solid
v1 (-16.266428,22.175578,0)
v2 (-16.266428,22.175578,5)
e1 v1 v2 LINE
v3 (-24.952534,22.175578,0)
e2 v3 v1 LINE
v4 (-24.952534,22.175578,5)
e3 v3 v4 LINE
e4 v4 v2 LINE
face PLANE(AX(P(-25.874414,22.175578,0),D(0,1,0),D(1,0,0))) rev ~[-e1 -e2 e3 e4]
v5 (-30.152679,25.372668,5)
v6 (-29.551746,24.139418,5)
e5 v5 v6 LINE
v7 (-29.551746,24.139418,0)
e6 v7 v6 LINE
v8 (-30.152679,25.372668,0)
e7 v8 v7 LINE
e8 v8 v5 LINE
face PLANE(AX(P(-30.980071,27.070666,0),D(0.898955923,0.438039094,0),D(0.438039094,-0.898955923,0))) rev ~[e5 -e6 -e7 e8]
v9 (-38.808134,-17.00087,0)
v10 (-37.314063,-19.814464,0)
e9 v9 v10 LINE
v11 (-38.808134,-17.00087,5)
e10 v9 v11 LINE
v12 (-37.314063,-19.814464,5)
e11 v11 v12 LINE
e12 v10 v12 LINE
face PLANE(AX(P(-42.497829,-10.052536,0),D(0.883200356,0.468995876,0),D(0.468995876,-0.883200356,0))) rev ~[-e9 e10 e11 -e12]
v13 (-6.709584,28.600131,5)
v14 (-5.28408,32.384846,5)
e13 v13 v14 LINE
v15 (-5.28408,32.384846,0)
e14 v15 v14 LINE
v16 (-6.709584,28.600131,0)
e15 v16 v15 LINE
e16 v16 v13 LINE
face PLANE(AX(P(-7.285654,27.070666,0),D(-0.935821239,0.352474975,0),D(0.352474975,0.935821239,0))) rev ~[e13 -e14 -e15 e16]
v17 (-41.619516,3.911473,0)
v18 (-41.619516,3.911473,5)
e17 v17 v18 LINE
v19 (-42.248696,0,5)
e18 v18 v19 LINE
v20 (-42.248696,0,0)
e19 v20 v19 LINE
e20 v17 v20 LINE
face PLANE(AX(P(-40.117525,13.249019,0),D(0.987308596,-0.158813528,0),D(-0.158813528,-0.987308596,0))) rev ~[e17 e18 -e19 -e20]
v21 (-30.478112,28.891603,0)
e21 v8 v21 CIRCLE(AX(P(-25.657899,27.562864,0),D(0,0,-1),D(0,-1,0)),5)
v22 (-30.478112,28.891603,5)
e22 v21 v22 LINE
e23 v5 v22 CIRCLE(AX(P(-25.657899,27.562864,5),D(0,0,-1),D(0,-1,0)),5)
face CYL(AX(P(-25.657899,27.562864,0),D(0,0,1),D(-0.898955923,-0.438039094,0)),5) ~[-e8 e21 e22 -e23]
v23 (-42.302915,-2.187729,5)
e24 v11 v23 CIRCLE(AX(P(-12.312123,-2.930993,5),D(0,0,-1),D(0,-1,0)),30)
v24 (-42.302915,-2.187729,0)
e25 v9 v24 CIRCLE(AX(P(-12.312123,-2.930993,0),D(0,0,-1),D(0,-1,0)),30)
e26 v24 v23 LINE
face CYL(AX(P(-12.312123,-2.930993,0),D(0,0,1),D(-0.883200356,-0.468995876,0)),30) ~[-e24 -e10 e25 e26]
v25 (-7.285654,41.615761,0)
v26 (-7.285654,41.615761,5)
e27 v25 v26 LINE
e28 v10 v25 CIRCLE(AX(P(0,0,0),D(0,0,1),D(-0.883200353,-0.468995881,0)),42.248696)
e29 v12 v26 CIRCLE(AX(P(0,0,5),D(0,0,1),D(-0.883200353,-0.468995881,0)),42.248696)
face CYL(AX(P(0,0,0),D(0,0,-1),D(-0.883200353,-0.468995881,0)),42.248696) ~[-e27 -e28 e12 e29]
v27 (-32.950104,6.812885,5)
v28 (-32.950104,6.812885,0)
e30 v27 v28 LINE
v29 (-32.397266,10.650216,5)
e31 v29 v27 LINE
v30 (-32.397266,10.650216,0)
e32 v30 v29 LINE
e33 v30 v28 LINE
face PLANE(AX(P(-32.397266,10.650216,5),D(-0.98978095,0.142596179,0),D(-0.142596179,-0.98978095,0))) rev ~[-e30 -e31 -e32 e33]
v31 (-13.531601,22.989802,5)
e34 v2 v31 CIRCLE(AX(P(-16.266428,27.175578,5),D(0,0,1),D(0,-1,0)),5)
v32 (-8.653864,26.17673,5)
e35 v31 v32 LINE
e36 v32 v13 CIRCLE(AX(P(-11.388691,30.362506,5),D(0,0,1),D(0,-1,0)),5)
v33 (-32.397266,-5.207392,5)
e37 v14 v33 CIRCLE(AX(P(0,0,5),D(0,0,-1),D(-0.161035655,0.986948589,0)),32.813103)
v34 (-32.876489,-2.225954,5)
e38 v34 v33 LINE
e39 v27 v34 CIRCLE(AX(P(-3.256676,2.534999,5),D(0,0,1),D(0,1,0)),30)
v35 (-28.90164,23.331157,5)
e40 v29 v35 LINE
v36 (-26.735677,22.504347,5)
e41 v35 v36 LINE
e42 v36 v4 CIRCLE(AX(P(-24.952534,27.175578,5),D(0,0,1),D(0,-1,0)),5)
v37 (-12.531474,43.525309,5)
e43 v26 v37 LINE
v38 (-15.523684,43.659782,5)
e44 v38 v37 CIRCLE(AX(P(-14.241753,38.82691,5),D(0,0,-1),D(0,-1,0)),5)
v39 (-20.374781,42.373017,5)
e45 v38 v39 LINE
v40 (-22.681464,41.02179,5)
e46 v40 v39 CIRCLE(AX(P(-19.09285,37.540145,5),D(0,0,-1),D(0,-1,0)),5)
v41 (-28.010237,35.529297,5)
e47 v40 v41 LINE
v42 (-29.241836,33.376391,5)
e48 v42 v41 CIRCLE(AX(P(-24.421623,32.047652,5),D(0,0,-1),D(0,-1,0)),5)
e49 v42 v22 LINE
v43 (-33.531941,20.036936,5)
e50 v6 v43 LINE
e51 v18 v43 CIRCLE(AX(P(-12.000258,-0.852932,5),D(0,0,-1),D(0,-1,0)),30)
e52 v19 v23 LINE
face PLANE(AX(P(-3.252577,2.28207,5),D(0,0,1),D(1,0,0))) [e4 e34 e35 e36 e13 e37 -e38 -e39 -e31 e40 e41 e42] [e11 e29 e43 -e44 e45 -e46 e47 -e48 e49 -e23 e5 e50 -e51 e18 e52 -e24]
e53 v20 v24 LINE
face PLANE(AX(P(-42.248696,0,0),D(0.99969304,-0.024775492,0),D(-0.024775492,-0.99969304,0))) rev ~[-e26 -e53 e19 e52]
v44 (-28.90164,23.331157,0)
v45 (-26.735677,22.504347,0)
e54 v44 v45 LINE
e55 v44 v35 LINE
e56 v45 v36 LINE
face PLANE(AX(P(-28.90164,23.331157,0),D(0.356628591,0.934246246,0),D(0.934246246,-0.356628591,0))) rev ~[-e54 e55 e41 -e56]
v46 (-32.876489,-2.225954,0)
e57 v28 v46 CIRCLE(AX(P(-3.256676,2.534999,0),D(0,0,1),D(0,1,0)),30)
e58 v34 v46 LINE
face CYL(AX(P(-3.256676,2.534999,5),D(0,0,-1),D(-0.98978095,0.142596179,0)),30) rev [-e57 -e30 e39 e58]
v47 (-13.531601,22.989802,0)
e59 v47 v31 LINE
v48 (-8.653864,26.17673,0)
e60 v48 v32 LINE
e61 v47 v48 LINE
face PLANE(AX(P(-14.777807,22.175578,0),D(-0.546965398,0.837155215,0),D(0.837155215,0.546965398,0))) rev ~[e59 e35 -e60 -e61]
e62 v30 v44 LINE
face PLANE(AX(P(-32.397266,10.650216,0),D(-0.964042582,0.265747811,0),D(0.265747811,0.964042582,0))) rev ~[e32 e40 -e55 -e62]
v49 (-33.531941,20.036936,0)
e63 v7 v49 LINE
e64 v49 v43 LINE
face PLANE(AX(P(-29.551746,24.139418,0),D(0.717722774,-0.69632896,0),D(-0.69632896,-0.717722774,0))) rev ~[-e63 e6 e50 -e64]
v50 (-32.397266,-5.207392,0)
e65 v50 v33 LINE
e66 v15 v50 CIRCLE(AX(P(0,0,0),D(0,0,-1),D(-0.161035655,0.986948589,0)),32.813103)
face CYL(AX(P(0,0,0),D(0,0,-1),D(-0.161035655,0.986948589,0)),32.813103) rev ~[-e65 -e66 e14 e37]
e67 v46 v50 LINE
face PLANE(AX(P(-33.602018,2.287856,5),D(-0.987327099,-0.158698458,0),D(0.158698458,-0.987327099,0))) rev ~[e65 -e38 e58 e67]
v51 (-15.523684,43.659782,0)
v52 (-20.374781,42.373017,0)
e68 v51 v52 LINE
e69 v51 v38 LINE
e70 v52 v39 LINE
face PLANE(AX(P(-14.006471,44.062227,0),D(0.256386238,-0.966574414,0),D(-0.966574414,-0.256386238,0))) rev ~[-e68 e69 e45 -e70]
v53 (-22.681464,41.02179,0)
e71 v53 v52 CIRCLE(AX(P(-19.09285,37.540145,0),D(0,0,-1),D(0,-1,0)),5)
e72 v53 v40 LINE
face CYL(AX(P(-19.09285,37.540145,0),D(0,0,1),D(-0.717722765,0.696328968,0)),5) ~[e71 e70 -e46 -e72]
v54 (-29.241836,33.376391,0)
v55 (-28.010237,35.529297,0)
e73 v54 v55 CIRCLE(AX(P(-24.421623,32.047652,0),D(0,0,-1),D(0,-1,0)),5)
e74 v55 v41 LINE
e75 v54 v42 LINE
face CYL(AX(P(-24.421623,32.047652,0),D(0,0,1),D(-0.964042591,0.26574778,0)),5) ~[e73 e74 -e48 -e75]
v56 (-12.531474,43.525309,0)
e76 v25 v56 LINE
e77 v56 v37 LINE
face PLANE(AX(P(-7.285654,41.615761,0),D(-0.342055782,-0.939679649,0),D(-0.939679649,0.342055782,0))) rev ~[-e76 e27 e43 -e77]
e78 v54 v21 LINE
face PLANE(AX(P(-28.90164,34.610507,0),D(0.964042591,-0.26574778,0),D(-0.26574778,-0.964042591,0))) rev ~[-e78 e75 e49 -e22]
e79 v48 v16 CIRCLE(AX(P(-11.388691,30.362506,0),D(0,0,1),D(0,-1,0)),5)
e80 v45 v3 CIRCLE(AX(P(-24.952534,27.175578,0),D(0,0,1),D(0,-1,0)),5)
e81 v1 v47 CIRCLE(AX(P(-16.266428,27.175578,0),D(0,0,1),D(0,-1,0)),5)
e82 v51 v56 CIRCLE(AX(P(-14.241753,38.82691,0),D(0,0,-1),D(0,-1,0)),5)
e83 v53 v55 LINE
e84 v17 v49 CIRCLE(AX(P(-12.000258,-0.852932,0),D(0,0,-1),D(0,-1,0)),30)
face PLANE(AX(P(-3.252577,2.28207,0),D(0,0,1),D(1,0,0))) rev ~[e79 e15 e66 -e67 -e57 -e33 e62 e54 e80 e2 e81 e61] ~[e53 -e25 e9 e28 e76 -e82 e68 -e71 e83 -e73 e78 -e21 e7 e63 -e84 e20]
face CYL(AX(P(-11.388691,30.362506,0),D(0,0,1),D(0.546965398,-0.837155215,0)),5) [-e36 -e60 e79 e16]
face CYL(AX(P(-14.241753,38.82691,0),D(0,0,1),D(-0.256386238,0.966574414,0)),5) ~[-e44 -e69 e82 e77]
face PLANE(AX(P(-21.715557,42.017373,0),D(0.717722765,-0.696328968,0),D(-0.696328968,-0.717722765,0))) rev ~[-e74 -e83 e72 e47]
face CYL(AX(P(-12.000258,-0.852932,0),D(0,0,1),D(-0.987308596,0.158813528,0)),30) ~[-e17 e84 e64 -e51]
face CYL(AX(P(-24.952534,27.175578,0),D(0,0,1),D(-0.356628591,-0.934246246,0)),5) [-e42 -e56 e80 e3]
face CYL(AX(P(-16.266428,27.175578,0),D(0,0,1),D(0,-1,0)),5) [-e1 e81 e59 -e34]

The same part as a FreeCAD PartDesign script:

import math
import FreeCAD as App
import Part
import Sketcher

V = App.Vector
Q = App.Units.Quantity


def edges_at(feature, points):
    """Names of the edges that pass closest to the given points."""
    edges = feature.Shape.Edges
    near = lambda p: min(range(len(edges)), key=lambda i: edges[i].distToShape(Part.Vertex(*p))[0])
    return sorted({f"Edge{near(p) + 1}" for p in points})


def add_polygon(sketch, points):
    """Adds a closed chain of lines whose ends are joined by coincident constraints."""
    first, n = sketch.GeometryCount, len(points)
    for a, b in zip(points, points[1:] + points[:1]):
        sketch.addGeometry(Part.LineSegment(App.Vector(*a, 0), App.Vector(*b, 0)), False)
    for i in range(n):
        sketch.addConstraint(Sketcher.Constraint("Coincident", first + i, 2, first + (i + 1) % n, 1))

doc = App.newDocument("Part")
body = doc.addObject("PartDesign::Body", "Body")

sketch1 = body.newObject("Sketcher::SketchObject", "Sketch")
sketch1.AttachmentSupport = (doc.getObject("XY_Plane"), [""])
sketch1.MapMode = "FlatFace"
sketch1.addGeometry(Part.LineSegment(V(-42.5, -10.1, 0), V(-37.3, -19.8, 0)), False)
sketch1.addGeometry(Part.ArcOfCircle(Part.Circle(V(0, 0, 0), V(0, 0, 1), 42.2), math.radians(-152), math.radians(100)), False)
sketch1.addGeometry(Part.LineSegment(V(-7.3, 41.6, 0), V(-14, 44.1, 0)), False)
sketch1.addGeometry(Part.LineSegment(V(-14, 44.1, 0), V(-21.7, 42, 0)), False)
sketch1.addGeometry(Part.LineSegment(V(-21.7, 42, 0), V(-28.9, 34.6, 0)), False)
sketch1.addGeometry(Part.LineSegment(V(-28.9, 34.6, 0), V(-31, 27.1, 0)), False)
sketch1.addGeometry(Part.LineSegment(V(-31, 27.1, 0), V(-29.6, 24.1, 0)), False)
sketch1.addGeometry(Part.LineSegment(V(-29.6, 24.1, 0), V(-40.1, 13.2, 0)), False)
sketch1.addGeometry(Part.LineSegment(V(-40.1, 13.2, 0), V(-42.2, 0, 0)), False)
sketch1.addGeometry(Part.LineSegment(V(-42.2, 0, 0), V(-42.5, -10.1, 0)), False)
sketch1.addGeometry(Part.LineSegment(V(-7.3, 27.1, 0), V(-5.3, 32.4, 0)), False)
sketch1.addGeometry(Part.ArcOfCircle(Part.Circle(V(0, 0, 0), V(0, 0, 1), 32.8), math.radians(-171), math.radians(99)), False)
sketch1.addGeometry(Part.LineSegment(V(-32.4, -5.2, 0), V(-32.4, 10.7, 0)), False)
sketch1.addGeometry(Part.LineSegment(V(-32.4, 10.7, 0), V(-28.9, 23.3, 0)), False)
sketch1.addGeometry(Part.LineSegment(V(-28.9, 23.3, 0), V(-25.9, 22.2, 0)), False)
sketch1.addGeometry(Part.LineSegment(V(-25.9, 22.2, 0), V(-14.8, 22.2, 0)), False)
sketch1.addGeometry(Part.LineSegment(V(-14.8, 22.2, 0), V(-7.3, 27.1, 0)), False)
sketch1.addConstraint(Sketcher.Constraint("Tangent", 0, 2, 1, 1))
sketch1.addConstraint(Sketcher.Constraint("Coincident", 1, 2, 2, 1))
sketch1.addConstraint(Sketcher.Constraint("Coincident", 2, 2, 3, 1))
sketch1.addConstraint(Sketcher.Constraint("Coincident", 3, 2, 4, 1))
sketch1.addConstraint(Sketcher.Constraint("Coincident", 4, 2, 5, 1))
sketch1.addConstraint(Sketcher.Constraint("Coincident", 5, 2, 6, 1))
sketch1.addConstraint(Sketcher.Constraint("Coincident", 6, 2, 7, 1))
sketch1.addConstraint(Sketcher.Constraint("Coincident", 7, 2, 8, 1))
sketch1.addConstraint(Sketcher.Constraint("Coincident", 8, 2, 9, 1))
sketch1.addConstraint(Sketcher.Constraint("Coincident", 9, 2, 0, 1))
sketch1.addConstraint(Sketcher.Constraint("Coincident", 10, 2, 11, 2))
sketch1.addConstraint(Sketcher.Constraint("Coincident", 11, 1, 12, 1))
sketch1.addConstraint(Sketcher.Constraint("Coincident", 12, 2, 13, 1))
sketch1.addConstraint(Sketcher.Constraint("Coincident", 13, 2, 14, 1))
sketch1.addConstraint(Sketcher.Constraint("Coincident", 14, 2, 15, 1))
sketch1.addConstraint(Sketcher.Constraint("Coincident", 15, 2, 16, 1))
sketch1.addConstraint(Sketcher.Constraint("Coincident", 16, 2, 10, 1))
sketch1.addConstraint(Sketcher.Constraint("Vertical", 12))
sketch1.addConstraint(Sketcher.Constraint("Horizontal", 15))
sketch1.addConstraint(Sketcher.Constraint("Coincident", 1, 3, -1, 1))
sketch1.addConstraint(Sketcher.Constraint("Coincident", 11, 3, -1, 1))
sketch1.addConstraint(Sketcher.Constraint("PointOnObject", 8, 2, -1))
sketch1.addConstraint(Sketcher.Constraint("Parallel", 4, 7))
sketch1.addConstraint(Sketcher.Constraint("Parallel", 5, 13))
sketch1.addConstraint(Sketcher.Constraint("Horizontal", 5, 2, 16, 2))
sketch1.addConstraint(Sketcher.Constraint("Vertical", 4, 2, 13, 2))
sketch1.addConstraint(Sketcher.Constraint("Vertical", 1, 2, 16, 2))
sketch1.addConstraint(Sketcher.Constraint("Radius", 1, Q("42.248696 mm")))
sketch1.addConstraint(Sketcher.Constraint("Radius", 11, Q("32.813103 mm")))
sketch1.addConstraint(Sketcher.Constraint("DistanceX", 5, 2, 2, 2, Q("16.9736 mm")))
sketch1.addConstraint(Sketcher.Constraint("DistanceY", 7, 2, 6, 2, Q("10.890399 mm")))
sketch1.addConstraint(Sketcher.Constraint("DistanceY", 12, 2, 6, 2, Q("13.489202 mm")))
sketch1.addConstraint(Sketcher.Constraint("Distance", 8, Q("13.419329 mm")))
sketch1.addConstraint(Sketcher.Constraint("Distance", 16, Q("8.949539 mm")))
sketch1.addConstraint(Sketcher.Constraint("DistanceX", 15, 1, 15, 2, Q("11.096607 mm")))
sketch1.addConstraint(Sketcher.Constraint("DistanceY", 12, 1, 12, 2, Q("15.857608 mm")))
sketch1.addConstraint(Sketcher.Constraint("DistanceY", -1, 1, 1, 2, Q("41.615761 mm")))
sketch1.addConstraint(Sketcher.Constraint("DistanceX", 2, 2, -1, 1, Q("14.006471 mm")))
sketch1.addConstraint(Sketcher.Constraint("DistanceX", 4, 2, -1, 1, Q("28.90164 mm")))
sketch1.addConstraint(Sketcher.Constraint("DistanceY", -1, 1, 7, 2, Q("13.249019 mm")))
sketch1.addConstraint(Sketcher.Constraint("DistanceX", 9, 2, -1, 1, Q("42.497829 mm")))
sketch1.addConstraint(Sketcher.Constraint("DistanceX", 10, 2, -1, 1, Q("5.28408 mm")))
sketch1.addConstraint(Sketcher.Constraint("DistanceY", -1, 1, 14, 2, Q("22.175578 mm")))
sketch1.addConstraint(Sketcher.Constraint("DistanceX", 0, 2, 1, 2, Q("30.028409 mm")))
sketch1.addConstraint(Sketcher.Constraint("DistanceY", 0, 2, 2, 2, Q("63.876691 mm")))
sketch1.addConstraint(Sketcher.Constraint("DistanceY", 1, 2, 3, 2, Q("0.401612 mm")))
sketch1.addConstraint(Sketcher.Constraint("DistanceY", 4, 2, 2, 2, Q("9.45172 mm")))
sketch1.addConstraint(Sketcher.Constraint("DistanceY", 5, 2, 4, 2, Q("7.539841 mm")))
sketch1.addConstraint(Sketcher.Constraint("DistanceX", 6, 2, 3, 2, Q("7.836189 mm")))
sketch1.addConstraint(Sketcher.Constraint("DistanceX", 6, 2, 1, 2, Q("22.266092 mm")))
pad1 = body.newObject("PartDesign::Pad", "Pad")
pad1.Profile = sketch1
pad1.Length = 5
doc.recompute()

fillet = body.newObject("PartDesign::Fillet", "Fillet")
fillet.Base = (pad1, edges_at(pad1, [(-42.498, -10.053, 2.5)]))
fillet.Radius = 30

sketch2 = body.newObject("Sketcher::SketchObject", "Sketch001")
sketch2.AttachmentSupport = (doc.getObject("XY_Plane"), [""])
sketch2.MapMode = "FlatFace"
sketch2.AttachmentOffset = App.Placement(V(0, 0, 5), App.Rotation())
add_polygon(sketch2, [(-34, 2), (-32, -5), (-32, 11)])
sketch2.addConstraint(Sketcher.Constraint("Vertical", 1))
sketch2.addConstraint(Sketcher.Constraint("DistanceY", 1, 1, 1, 2, Q("15.857608 mm")))
sketch2.addConstraint(Sketcher.Constraint("DistanceY", 0, 2, -1, 1, Q("5.207392 mm")))
sketch2.addConstraint(Sketcher.Constraint("DistanceX", 2, 2, 0, 2, Q("1.204752 mm")))
sketch2.addConstraint(Sketcher.Constraint("DistanceY", 2, 2, 1, 2, Q("8.36236 mm")))
sketch2.addConstraint(Sketcher.Constraint("DistanceX", 0, 2, -1, 1, Q("32.397266 mm")))
pocket1 = body.newObject("PartDesign::Pocket", "Pocket")
pocket1.Profile = sketch2
pocket1.Type = "ThroughAll"
doc.recompute()

fillet2 = body.newObject("PartDesign::Fillet", "Fillet001")
fillet2.Base = (pocket1, edges_at(pocket1, [(-40.118, 13.249, 2.5)]))
fillet2.Radius = 30
doc.recompute()

fillet3 = body.newObject("PartDesign::Fillet", "Fillet002")
fillet3.Base = (fillet2, edges_at(fillet2, [(-33.602, 2.288, 2.5)]))
fillet3.Radius = 30
doc.recompute()

fillet4 = body.newObject("PartDesign::Fillet", "Fillet003")
fillet4.Base = (fillet3, edges_at(fillet3, [(-30.98, 27.071, 2.5)]))
fillet4.Radius = 5
doc.recompute()

fillet5 = body.newObject("PartDesign::Fillet", "Fillet004")
fillet5.Base = (fillet4, edges_at(fillet4, [(-25.874, 22.176, 2.5)]))
fillet5.Radius = 5
doc.recompute()

fillet6 = body.newObject("PartDesign::Fillet", "Fillet005")
fillet6.Base = (fillet5, edges_at(fillet5, [(-28.902, 34.611, 2.5), (-21.716, 42.017, 2.5), (-14.006, 44.062, 2.5)]))
fillet6.Radius = 5
doc.recompute()

fillet7 = body.newObject("PartDesign::Fillet", "Fillet006")
fillet7.Base = (fillet6, edges_at(fillet6, [(-14.778, 22.176, 2.5), (-7.286, 27.071, 2.5)]))
fillet7.Radius = 5

doc.recompute()
